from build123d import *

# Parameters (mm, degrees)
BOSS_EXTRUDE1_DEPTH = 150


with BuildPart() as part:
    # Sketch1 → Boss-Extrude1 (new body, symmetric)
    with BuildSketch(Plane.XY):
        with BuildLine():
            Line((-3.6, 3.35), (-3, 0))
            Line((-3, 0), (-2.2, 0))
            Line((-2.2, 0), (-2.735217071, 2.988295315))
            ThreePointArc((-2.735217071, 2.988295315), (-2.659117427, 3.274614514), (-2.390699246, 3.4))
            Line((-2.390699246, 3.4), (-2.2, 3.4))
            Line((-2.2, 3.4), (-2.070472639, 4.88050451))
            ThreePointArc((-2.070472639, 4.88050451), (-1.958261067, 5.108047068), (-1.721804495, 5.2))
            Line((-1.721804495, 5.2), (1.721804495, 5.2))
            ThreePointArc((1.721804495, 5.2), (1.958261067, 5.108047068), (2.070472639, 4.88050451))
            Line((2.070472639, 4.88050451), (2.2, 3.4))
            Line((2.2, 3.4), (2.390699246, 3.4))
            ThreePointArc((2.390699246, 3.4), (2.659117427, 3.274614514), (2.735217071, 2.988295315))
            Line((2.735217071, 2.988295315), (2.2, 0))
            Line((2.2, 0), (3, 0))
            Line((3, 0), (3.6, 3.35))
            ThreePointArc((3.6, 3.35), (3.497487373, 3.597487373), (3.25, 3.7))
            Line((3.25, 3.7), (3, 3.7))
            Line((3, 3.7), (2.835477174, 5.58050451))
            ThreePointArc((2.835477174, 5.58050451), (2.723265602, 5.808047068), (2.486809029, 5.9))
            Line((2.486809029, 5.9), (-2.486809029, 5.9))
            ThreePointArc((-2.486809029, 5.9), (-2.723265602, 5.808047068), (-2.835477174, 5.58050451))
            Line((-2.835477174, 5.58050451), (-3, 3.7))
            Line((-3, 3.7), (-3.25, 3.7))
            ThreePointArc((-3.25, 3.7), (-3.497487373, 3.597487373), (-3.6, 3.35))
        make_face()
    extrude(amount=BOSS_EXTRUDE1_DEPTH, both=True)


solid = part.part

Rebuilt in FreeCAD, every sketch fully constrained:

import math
import FreeCAD as App
import Part
import Sketcher
from FreeCAD import Vector
Q = App.Units.Quantity

doc = App.newDocument("Part")
params = doc.addObject("Spreadsheet::Sheet", "Params")
for row, (alias, value) in enumerate([
    ("sketch1_radius", "0.35 mm"),
    ("sketch1_width", "0.8 mm"),
    ("sketch1_width2", "0.25 mm"),
    ("pad1_length", "300 mm"),
], start=1):
    params.set(f"A{row}", alias)
    params.set(f"B{row}", "=" + value)
    params.setAlias(f"B{row}", alias)

body = doc.addObject("PartDesign::Body", "Body")

sketch1 = body.newObject("Sketcher::SketchObject", "Sketch")
sketch1.AttachmentSupport = (doc.getObject("XY_Plane"), [""])
sketch1.MapMode = "FlatFace"
sketch1.addGeometry([
    Part.LineSegment(Vector(-3.6, 3.35, 0), Vector(-3, 0, 0)),
    Part.LineSegment(Vector(-3, 0, 0), Vector(-2.2, 0, 0)),
    Part.LineSegment(Vector(-2.2, 0, 0), Vector(-2.74, 2.99, 0)),
    Part.ArcOfCircle(Part.Circle(Vector(-2.39, 3.05, 0), Vector(0, 0, 1), 0.35), math.radians(90), math.radians(190)),
    Part.LineSegment(Vector(-2.39, 3.4, 0), Vector(-2.2, 3.4, 0)),
    Part.LineSegment(Vector(-2.2, 3.4, 0), Vector(-2.07, 4.88, 0)),
    Part.ArcOfCircle(Part.Circle(Vector(-1.72, 4.85, 0), Vector(0, 0, 1), 0.35), math.radians(90), math.radians(175)),
    Part.LineSegment(Vector(-1.72, 5.2, 0), Vector(1.72, 5.2, 0)),
    Part.ArcOfCircle(Part.Circle(Vector(1.72, 4.85, 0), Vector(0, 0, 1), 0.35), math.radians(5), math.radians(90)),
    Part.LineSegment(Vector(2.07, 4.88, 0), Vector(2.2, 3.4, 0)),
    Part.LineSegment(Vector(2.2, 3.4, 0), Vector(2.39, 3.4, 0)),
    Part.ArcOfCircle(Part.Circle(Vector(2.39, 3.05, 0), Vector(0, 0, 1), 0.35), math.radians(-10), math.radians(90)),
    Part.LineSegment(Vector(2.74, 2.99, 0), Vector(2.2, 0, 0)),
    Part.LineSegment(Vector(2.2, 0, 0), Vector(3, 0, 0)),
    Part.LineSegment(Vector(3, 0, 0), Vector(3.6, 3.35, 0)),
    Part.ArcOfCircle(Part.Circle(Vector(3.25, 3.35, 0), Vector(0, 0, 1), 0.35), math.radians(0), math.radians(90)),
    Part.LineSegment(Vector(3.25, 3.7, 0), Vector(3, 3.7, 0)),
    Part.LineSegment(Vector(3, 3.7, 0), Vector(2.84, 5.58, 0)),
    Part.ArcOfCircle(Part.Circle(Vector(2.49, 5.55, 0), Vector(0, 0, 1), 0.35), math.radians(5), math.radians(90)),
    Part.LineSegment(Vector(2.49, 5.9, 0), Vector(-2.49, 5.9, 0)),
    Part.ArcOfCircle(Part.Circle(Vector(-2.49, 5.55, 0), Vector(0, 0, 1), 0.35), math.radians(90), math.radians(175)),
    Part.LineSegment(Vector(-2.84, 5.58, 0), Vector(-3, 3.7, 0)),
    Part.LineSegment(Vector(-3, 3.7, 0), Vector(-3.25, 3.7, 0)),
    Part.ArcOfCircle(Part.Circle(Vector(-3.25, 3.35, 0), Vector(0, 0, 1), 0.35), math.radians(90), math.radians(180)),
], False)
sketch1.addConstraint([
    Sketcher.Constraint("Coincident", 0, 2, 1, 1),
    Sketcher.Constraint("Coincident", 1, 2, 2, 1),
    Sketcher.Constraint("Tangent", 2, 2, 3, 2),
    Sketcher.Constraint("Tangent", 3, 1, 4, 1),
    Sketcher.Constraint("Coincident", 4, 2, 5, 1),
    Sketcher.Constraint("Tangent", 5, 2, 6, 2),
    Sketcher.Constraint("Tangent", 6, 1, 7, 1),
    Sketcher.Constraint("Tangent", 7, 2, 8, 2),
    Sketcher.Constraint("Tangent", 8, 1, 9, 1),
    Sketcher.Constraint("Coincident", 9, 2, 10, 1),
    Sketcher.Constraint("Tangent", 10, 2, 11, 2),
    Sketcher.Constraint("Tangent", 11, 1, 12, 1),
    Sketcher.Constraint("Coincident", 12, 2, 13, 1),
    Sketcher.Constraint("Coincident", 13, 2, 14, 1),
    Sketcher.Constraint("Coincident", 14, 2, 15, 1),
    Sketcher.Constraint("Tangent", 15, 2, 16, 1),
    Sketcher.Constraint("Coincident", 16, 2, 17, 1),
    Sketcher.Constraint("Tangent", 17, 2, 18, 1),
    Sketcher.Constraint("Tangent", 18, 2, 19, 1),
    Sketcher.Constraint("Tangent", 19, 2, 20, 1),
    Sketcher.Constraint("Tangent", 20, 2, 21, 1),
    Sketcher.Constraint("Coincident", 21, 2, 22, 1),
    Sketcher.Constraint("Tangent", 22, 2, 23, 1),
    Sketcher.Constraint("Coincident", 23, 2, 0, 1),
    Sketcher.Constraint("Horizontal", 1),
    Sketcher.Constraint("Horizontal", 4),
    Sketcher.Constraint("Horizontal", 7),
    Sketcher.Constraint("Horizontal", 10),
    Sketcher.Constraint("Horizontal", 13),
    Sketcher.Constraint("Horizontal", 16),
    Sketcher.Constraint("Horizontal", 19),
    Sketcher.Constraint("Horizontal", 22),
    Sketcher.Constraint("Equal", 3, 6),
    Sketcher.Constraint("Equal", 6, 8),
    Sketcher.Constraint("Equal", 8, 11),
    Sketcher.Constraint("Equal", 11, 15),
    Sketcher.Constraint("Equal", 15, 18),
    Sketcher.Constraint("Equal", 18, 20),
    Sketcher.Constraint("Equal", 20, 23),
    Sketcher.Constraint("Symmetric", 1, 2, 12, 2, -1, 1),
    Sketcher.Constraint("Symmetric", 3, 3, 11, 3, -2),
    Sketcher.Constraint("Symmetric", 15, 3, 23, 3, -2),
    Sketcher.Constraint("Symmetric", 5, 2, 8, 1, -2),
    Sketcher.Constraint("Symmetric", 0, 2, 13, 2, -2),
    Sketcher.Constraint("Symmetric", 17, 2, 20, 2, -2),
    Sketcher.Constraint("Parallel", 0, 2),
    Sketcher.Constraint("Parallel", 12, 14),
    Sketcher.Constraint("Parallel", 9, 17),
    Sketcher.Constraint("Horizontal", 23, 3, 14, 2),
    Sketcher.Constraint("Vertical", 1, 2, 4, 2),
    Sketcher.Constraint("Vertical", 13, 2, 16, 2),
    Sketcher.Constraint("Angle", 5, Q("85 deg")),
    Sketcher.Constraint("Radius", 3, Q("0.35 mm")),
    Sketcher.Constraint("DistanceX", 1, 1, 1, 2, Q("0.8 mm")),
    Sketcher.Constraint("DistanceX", 0, 2, -1, 1, Q("3 mm")),
    Sketcher.Constraint("DistanceX", 16, 2, 16, 1, Q("0.25 mm")),
    Sketcher.Constraint("DistanceY", -1, 1, 3, 1, Q("3.4 mm")),
    Sketcher.Constraint("DistanceY", -1, 1, 6, 1, Q("5.2 mm")),
    Sketcher.Constraint("DistanceY", -1, 1, 15, 2, Q("3.7 mm")),
    Sketcher.Constraint("DistanceY", -1, 1, 18, 2, Q("5.9 mm")),
])
sketch1.setExpression("Constraints[52]", "Params.sketch1_radius")
sketch1.setExpression("Constraints[53]", "Params.sketch1_width")
sketch1.setExpression("Constraints[55]", "Params.sketch1_width2")
pad1 = body.newObject("PartDesign::Pad", "Pad")
pad1.Profile = sketch1
pad1.setExpression("Length", "Params.pad1_length")
pad1.Midplane = True

doc.recompute()
